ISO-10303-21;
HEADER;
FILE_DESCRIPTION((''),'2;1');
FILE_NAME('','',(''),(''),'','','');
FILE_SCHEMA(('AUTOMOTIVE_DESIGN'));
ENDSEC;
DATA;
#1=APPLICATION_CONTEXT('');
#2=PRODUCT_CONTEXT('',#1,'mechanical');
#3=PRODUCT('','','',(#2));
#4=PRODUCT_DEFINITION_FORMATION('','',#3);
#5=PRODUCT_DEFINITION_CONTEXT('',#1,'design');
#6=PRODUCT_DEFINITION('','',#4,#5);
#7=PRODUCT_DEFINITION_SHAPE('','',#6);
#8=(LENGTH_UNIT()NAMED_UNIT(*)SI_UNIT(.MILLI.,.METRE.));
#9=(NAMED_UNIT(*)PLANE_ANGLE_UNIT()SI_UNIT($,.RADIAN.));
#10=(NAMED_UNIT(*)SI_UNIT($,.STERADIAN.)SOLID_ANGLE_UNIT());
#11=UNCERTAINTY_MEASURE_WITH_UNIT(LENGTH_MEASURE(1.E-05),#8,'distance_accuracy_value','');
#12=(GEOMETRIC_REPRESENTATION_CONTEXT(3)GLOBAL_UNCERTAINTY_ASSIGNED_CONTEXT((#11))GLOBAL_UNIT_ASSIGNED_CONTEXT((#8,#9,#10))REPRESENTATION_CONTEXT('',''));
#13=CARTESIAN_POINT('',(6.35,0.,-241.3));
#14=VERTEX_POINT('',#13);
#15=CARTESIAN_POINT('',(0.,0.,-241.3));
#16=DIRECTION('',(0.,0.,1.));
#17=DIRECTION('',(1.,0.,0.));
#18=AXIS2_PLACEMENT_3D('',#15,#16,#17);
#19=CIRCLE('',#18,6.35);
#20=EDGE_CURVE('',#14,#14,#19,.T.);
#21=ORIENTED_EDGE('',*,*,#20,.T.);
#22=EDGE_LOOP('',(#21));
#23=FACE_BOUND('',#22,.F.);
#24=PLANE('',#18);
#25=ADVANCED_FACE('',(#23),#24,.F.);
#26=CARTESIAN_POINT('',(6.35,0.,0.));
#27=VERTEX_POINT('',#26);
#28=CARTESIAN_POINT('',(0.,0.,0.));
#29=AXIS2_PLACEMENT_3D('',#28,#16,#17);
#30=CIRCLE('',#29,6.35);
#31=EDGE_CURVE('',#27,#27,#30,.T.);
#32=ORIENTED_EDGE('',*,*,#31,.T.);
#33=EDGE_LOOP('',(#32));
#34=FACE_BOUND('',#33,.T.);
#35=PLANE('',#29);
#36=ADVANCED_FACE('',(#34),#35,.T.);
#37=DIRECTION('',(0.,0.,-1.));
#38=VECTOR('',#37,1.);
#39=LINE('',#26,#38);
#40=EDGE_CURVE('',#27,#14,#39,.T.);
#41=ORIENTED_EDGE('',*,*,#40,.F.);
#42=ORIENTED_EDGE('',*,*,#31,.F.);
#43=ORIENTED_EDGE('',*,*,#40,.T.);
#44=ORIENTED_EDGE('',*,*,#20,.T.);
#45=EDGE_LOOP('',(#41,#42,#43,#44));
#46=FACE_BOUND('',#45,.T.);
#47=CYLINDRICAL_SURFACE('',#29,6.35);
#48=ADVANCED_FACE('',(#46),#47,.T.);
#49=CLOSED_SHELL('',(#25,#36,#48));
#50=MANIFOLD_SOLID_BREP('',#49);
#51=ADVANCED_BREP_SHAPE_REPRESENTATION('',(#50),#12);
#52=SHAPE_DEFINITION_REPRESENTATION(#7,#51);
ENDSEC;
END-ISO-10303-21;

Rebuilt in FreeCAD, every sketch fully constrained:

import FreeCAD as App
import Part
import Sketcher
from FreeCAD import Vector
Q = App.Units.Quantity

doc = App.newDocument("Part")
body = doc.addObject("PartDesign::Body", "Body")

sketch1 = body.newObject("Sketcher::SketchObject", "Sketch")
sketch1.AttachmentSupport = (doc.getObject("XY_Plane"), [""])
sketch1.MapMode = "FlatFace"
sketch1.addGeometry(Part.Circle(Vector(0, 0, 0), Vector(0, 0, 1), 6.35), False)
sketch1.addConstraint(Sketcher.Constraint("Coincident", 0, 3, -1, 1))
sketch1.addConstraint(Sketcher.Constraint("Diameter", 0, Q("0.5 in")))
pad1 = body.newObject("PartDesign::Pad", "Pad")
pad1.Profile = sketch1
pad1.Length = Q("9.5 in")
pad1.Reversed = True

doc.recompute()
